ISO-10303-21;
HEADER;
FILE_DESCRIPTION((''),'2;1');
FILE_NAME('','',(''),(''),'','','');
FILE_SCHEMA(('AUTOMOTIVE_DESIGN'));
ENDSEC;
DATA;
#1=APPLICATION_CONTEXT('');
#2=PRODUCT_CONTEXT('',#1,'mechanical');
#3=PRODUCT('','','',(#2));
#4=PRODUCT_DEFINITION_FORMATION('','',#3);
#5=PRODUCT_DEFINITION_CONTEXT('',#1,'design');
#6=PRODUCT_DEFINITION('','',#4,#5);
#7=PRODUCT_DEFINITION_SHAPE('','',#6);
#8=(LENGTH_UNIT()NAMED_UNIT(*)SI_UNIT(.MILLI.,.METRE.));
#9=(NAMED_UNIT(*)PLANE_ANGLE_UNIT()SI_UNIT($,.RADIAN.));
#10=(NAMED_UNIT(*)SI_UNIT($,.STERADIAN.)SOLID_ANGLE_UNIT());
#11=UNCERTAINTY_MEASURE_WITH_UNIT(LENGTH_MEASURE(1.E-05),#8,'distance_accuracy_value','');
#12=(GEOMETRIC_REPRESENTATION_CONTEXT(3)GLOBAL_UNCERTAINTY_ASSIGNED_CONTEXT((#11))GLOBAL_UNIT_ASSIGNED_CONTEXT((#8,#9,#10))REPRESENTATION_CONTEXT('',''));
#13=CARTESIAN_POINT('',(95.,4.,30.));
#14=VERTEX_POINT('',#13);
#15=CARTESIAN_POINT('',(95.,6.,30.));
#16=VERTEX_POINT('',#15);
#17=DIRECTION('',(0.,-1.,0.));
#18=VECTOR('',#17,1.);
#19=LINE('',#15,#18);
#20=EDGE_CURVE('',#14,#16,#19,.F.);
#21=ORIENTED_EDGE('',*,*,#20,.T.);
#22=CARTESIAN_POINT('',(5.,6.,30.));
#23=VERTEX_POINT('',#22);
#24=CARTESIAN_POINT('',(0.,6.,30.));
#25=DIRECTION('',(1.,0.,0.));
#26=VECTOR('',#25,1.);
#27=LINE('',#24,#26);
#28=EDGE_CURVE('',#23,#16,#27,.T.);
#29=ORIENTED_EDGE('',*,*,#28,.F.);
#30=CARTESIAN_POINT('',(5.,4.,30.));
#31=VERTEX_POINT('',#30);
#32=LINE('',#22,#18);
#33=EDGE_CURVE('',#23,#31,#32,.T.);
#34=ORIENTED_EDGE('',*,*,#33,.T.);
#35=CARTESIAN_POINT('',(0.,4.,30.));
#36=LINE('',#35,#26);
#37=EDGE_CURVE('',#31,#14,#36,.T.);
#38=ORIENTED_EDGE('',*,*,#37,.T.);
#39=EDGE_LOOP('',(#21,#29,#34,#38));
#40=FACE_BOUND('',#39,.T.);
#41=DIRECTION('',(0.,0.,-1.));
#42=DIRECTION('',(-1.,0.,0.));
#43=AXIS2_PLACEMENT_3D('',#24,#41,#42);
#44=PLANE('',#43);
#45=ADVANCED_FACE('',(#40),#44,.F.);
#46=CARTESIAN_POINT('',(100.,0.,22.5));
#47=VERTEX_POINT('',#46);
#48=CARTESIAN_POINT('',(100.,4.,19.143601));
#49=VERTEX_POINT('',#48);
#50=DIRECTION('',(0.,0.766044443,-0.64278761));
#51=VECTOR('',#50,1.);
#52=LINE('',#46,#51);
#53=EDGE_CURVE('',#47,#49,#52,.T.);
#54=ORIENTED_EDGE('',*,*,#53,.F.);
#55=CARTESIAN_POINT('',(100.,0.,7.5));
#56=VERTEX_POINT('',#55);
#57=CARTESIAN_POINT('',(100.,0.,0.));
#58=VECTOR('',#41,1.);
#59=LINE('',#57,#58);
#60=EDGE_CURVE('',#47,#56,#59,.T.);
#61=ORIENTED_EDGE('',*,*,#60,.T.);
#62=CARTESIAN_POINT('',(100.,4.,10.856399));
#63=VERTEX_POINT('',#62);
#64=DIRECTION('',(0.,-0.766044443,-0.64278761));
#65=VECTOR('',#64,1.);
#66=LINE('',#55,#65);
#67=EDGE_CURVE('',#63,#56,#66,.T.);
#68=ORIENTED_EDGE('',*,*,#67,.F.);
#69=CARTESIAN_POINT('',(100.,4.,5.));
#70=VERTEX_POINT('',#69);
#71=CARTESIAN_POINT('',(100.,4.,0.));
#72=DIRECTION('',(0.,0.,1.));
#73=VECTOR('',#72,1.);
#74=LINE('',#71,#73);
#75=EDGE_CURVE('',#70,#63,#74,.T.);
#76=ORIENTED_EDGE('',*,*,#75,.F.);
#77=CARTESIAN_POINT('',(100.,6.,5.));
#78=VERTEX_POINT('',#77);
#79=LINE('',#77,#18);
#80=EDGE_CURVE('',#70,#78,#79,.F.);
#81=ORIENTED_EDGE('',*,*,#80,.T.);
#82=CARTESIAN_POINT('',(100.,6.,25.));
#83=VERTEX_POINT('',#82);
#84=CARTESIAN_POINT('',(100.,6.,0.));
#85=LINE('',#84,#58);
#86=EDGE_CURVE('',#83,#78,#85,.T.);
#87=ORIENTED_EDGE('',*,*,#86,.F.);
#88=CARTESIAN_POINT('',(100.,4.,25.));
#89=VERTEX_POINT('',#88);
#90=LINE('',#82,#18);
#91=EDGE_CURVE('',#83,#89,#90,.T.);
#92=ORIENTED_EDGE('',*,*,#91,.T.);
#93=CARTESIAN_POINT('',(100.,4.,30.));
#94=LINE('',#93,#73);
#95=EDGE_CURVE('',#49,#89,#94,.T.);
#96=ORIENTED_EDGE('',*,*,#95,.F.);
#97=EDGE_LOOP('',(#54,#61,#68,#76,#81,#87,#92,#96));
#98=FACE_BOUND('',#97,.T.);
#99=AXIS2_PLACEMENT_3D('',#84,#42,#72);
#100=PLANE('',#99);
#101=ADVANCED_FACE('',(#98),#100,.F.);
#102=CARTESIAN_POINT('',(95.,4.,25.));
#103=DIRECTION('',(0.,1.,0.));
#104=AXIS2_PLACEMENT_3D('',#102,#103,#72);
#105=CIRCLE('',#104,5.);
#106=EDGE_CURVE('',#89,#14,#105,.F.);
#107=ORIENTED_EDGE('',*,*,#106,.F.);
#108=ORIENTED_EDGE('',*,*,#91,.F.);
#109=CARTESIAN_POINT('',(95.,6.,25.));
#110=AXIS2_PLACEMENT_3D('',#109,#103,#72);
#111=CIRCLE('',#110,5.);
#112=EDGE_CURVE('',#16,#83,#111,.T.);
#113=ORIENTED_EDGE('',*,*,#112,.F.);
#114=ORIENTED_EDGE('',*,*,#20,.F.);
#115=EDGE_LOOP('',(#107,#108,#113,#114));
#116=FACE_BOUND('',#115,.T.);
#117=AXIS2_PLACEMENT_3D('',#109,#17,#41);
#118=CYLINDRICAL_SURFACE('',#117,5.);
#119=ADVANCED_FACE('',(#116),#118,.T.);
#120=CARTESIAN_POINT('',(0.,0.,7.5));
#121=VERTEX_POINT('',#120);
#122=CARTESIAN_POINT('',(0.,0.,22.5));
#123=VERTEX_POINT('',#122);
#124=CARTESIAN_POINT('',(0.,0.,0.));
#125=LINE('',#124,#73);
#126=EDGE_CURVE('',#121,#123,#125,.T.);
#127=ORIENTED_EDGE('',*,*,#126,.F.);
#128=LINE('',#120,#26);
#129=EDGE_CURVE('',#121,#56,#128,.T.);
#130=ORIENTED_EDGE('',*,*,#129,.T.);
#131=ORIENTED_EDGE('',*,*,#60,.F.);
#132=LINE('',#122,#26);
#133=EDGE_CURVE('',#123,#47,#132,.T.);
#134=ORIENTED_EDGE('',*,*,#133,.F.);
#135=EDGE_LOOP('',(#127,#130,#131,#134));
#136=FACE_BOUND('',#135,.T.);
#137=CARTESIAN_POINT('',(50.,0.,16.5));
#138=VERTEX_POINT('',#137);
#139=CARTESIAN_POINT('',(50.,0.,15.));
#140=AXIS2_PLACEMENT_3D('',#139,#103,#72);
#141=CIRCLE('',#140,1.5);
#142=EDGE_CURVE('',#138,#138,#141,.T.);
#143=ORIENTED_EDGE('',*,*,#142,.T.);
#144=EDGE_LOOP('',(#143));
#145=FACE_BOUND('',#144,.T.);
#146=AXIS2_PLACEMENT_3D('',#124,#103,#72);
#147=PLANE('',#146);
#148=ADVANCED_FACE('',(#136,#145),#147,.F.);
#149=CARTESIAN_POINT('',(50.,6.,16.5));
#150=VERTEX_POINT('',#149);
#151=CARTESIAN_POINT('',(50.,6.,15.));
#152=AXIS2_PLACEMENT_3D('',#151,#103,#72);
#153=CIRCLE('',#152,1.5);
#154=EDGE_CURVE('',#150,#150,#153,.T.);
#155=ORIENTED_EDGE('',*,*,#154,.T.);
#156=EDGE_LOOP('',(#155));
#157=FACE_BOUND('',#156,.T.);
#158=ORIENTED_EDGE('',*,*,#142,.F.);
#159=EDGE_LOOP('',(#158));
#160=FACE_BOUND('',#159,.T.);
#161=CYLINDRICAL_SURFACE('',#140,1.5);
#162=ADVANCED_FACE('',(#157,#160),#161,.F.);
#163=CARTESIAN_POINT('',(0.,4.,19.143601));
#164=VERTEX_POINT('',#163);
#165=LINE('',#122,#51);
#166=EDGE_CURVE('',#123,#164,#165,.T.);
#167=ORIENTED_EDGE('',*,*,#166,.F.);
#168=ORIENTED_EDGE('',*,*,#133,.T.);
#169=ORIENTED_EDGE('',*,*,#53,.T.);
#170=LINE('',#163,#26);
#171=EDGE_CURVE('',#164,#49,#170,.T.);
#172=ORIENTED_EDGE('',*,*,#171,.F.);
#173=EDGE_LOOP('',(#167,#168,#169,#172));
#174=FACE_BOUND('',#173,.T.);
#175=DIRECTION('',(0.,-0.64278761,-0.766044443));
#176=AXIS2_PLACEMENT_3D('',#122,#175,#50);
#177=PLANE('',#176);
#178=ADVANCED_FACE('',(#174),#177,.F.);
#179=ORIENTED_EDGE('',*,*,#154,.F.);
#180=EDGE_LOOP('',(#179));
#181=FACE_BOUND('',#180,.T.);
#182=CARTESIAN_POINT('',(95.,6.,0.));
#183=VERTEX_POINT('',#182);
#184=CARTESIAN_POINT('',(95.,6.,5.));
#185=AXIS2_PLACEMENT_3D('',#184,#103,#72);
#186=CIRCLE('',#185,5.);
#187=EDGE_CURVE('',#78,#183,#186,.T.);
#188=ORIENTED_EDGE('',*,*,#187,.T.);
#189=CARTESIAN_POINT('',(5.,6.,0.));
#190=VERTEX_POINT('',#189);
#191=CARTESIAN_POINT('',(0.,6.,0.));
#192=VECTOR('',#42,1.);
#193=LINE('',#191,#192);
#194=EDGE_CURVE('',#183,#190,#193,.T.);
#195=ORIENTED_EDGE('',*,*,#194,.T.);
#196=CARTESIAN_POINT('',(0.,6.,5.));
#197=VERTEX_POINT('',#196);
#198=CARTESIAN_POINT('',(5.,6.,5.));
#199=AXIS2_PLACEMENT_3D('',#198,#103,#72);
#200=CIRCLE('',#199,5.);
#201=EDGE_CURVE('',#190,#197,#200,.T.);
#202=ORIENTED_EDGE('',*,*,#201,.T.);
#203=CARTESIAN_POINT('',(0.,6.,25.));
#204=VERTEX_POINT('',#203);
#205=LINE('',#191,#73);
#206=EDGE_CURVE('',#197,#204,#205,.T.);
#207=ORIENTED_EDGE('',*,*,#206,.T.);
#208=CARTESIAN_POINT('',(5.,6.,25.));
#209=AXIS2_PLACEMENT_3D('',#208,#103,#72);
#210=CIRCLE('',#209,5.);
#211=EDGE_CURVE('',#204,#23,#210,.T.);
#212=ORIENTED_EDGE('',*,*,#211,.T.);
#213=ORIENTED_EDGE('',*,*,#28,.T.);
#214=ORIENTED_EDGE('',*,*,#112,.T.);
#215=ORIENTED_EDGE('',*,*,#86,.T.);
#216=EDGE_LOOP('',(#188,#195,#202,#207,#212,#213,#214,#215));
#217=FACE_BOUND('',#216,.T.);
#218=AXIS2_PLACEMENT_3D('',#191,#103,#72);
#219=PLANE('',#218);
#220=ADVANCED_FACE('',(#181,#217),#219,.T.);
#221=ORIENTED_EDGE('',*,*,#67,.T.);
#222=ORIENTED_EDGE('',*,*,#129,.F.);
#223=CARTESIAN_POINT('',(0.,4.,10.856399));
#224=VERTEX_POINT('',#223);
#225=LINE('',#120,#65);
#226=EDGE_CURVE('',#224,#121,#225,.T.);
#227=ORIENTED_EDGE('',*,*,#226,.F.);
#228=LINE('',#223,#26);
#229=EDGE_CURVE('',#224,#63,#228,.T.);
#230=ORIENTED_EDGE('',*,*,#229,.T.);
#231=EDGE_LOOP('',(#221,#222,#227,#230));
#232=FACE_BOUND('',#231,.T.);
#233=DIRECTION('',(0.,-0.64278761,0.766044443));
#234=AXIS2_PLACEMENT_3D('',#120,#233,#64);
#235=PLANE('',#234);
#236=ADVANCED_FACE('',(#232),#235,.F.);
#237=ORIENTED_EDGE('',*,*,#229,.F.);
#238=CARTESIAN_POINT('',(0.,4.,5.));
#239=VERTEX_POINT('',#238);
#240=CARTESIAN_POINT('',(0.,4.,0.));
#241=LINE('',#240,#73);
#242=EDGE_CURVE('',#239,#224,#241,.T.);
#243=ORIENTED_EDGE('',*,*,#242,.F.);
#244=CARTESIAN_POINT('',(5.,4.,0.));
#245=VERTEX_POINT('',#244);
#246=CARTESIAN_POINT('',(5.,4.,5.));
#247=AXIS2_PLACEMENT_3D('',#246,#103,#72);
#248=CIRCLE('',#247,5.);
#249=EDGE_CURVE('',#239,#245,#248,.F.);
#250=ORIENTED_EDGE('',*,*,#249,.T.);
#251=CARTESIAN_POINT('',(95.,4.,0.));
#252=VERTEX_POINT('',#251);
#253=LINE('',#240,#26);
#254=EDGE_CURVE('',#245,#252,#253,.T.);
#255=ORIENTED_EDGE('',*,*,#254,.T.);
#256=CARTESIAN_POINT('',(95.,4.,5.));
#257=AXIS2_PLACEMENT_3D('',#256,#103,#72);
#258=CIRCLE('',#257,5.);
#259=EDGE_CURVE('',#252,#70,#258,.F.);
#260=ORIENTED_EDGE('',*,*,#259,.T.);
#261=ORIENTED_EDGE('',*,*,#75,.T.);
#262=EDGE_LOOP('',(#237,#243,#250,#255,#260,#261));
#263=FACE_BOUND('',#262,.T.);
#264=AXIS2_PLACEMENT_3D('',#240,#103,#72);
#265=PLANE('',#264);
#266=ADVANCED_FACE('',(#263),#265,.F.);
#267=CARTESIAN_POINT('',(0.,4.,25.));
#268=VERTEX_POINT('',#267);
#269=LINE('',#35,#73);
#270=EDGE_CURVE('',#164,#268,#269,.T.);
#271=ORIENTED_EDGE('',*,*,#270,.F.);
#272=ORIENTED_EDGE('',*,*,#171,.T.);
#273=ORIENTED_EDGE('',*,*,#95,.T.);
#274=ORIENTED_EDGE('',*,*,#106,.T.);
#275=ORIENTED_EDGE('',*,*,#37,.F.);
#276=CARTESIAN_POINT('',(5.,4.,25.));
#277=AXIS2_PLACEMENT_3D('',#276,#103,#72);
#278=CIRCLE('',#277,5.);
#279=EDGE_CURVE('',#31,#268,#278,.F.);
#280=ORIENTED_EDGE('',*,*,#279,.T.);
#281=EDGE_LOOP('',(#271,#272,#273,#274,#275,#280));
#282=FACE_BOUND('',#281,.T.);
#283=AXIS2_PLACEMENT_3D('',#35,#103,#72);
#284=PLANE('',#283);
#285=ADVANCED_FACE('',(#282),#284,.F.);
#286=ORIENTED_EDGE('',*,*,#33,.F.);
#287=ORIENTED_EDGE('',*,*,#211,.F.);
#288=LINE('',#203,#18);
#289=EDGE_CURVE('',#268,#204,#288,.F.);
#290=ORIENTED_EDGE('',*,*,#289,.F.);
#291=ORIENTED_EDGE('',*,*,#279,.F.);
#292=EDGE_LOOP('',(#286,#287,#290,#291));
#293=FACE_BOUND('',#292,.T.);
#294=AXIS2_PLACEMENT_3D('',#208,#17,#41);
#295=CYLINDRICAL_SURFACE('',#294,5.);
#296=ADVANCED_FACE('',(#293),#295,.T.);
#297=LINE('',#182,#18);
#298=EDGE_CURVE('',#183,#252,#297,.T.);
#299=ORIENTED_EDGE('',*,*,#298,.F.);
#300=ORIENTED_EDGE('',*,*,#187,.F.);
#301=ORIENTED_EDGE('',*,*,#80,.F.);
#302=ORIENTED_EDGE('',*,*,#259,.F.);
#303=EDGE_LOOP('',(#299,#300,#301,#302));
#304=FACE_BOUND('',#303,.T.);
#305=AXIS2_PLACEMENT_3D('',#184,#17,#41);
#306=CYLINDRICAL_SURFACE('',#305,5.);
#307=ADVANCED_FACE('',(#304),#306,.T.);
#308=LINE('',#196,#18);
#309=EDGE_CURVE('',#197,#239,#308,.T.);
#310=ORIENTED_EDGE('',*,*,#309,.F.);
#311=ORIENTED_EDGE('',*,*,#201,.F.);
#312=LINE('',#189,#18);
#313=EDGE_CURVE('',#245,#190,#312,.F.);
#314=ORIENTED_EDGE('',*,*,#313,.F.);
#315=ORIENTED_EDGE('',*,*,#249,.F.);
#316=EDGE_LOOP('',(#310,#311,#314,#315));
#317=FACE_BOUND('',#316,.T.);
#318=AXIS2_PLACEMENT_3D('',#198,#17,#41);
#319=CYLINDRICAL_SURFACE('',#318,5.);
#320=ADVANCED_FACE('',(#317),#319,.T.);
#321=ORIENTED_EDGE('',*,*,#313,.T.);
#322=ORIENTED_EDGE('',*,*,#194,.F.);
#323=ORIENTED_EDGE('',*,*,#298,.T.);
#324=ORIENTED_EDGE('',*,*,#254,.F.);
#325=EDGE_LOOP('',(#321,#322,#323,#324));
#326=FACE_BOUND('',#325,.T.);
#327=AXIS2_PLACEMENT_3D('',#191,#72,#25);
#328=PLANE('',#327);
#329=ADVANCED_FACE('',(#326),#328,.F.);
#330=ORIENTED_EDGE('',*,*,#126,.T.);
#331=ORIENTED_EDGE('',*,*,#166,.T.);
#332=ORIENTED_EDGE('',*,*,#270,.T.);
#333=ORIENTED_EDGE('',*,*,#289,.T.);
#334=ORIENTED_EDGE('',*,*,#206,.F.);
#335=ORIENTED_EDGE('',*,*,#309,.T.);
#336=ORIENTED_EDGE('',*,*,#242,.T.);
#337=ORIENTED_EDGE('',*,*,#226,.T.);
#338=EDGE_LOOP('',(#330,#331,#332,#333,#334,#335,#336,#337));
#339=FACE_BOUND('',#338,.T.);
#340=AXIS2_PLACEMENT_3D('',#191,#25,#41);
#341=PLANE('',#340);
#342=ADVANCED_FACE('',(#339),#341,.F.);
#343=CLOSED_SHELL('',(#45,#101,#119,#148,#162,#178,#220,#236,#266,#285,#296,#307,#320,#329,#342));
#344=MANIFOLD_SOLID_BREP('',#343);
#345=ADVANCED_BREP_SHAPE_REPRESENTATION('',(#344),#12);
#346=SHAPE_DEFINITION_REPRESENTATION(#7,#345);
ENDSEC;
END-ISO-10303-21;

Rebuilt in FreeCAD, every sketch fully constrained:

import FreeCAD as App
import Part
import Sketcher
Q = App.Units.Quantity


def edges_at(feature, points):
    """Names of the edges that pass closest to the given points."""
    edges = feature.Shape.Edges
    near = lambda p: min(range(len(edges)), key=lambda i: edges[i].distToShape(Part.Vertex(*p))[0])
    return sorted({f"Edge{near(p) + 1}" for p in points})


def add_polygon(sketch, points):
    """Adds a closed chain of lines whose ends are joined by coincident constraints."""
    first, n = sketch.GeometryCount, len(points)
    for a, b in zip(points, points[1:] + points[:1]):
        sketch.addGeometry(Part.LineSegment(App.Vector(*a, 0), App.Vector(*b, 0)), False)
    for i in range(n):
        sketch.addConstraint(Sketcher.Constraint("Coincident", first + i, 2, first + (i + 1) % n, 1))

doc = App.newDocument("Part")
body = doc.addObject("PartDesign::Body", "Body")

sketch1 = body.newObject("Sketcher::SketchObject", "Sketch")
sketch1.AttachmentSupport = (doc.getObject("XZ_Plane"), [""])
sketch1.MapMode = "FlatFace"
add_polygon(sketch1, [(0, 0), (0, 30), (100, 30), (100, 0)])
sketch1.addConstraint(Sketcher.Constraint("Vertical", 0))
sketch1.addConstraint(Sketcher.Constraint("Horizontal", 1))
sketch1.addConstraint(Sketcher.Constraint("Vertical", 2))
sketch1.addConstraint(Sketcher.Constraint("Horizontal", 3))
sketch1.addConstraint(Sketcher.Constraint("Coincident", 3, 2, -1, 1))
sketch1.addConstraint(Sketcher.Constraint("DistanceX", 1, 1, 1, 2, Q("100 mm")))
sketch1.addConstraint(Sketcher.Constraint("DistanceY", 0, 1, 0, 2, Q("30 mm")))
pad1 = body.newObject("PartDesign::Pad", "Pad")
pad1.Profile = sketch1
pad1.Length = 6
pad1.Reversed = True

sketch2 = body.newObject("Sketcher::SketchObject", "Sketch001")
sketch2.AttachmentSupport = (doc.getObject("YZ_Plane"), [""])
sketch2.MapMode = "FlatFace"
sketch2.AttachmentOffset = App.Placement(App.Vector(0, 0, 100), App.Rotation())
add_polygon(sketch2, [(0, 7.5), (0, 0), (4, 0), (4, 10.9)])
add_polygon(sketch2, [(0, 30), (0, 22.5), (4, 19.1), (4, 30)])
sketch2.addConstraint(Sketcher.Constraint("Vertical", 0))
sketch2.addConstraint(Sketcher.Constraint("Horizontal", 1))
sketch2.addConstraint(Sketcher.Constraint("Vertical", 2))
sketch2.addConstraint(Sketcher.Constraint("Vertical", 4))
sketch2.addConstraint(Sketcher.Constraint("Vertical", 6))
sketch2.addConstraint(Sketcher.Constraint("Horizontal", 7))
sketch2.addConstraint(Sketcher.Constraint("Coincident", 0, 2, -1, 1))
sketch2.addConstraint(Sketcher.Constraint("PointOnObject", 4, 2, -2))
sketch2.addConstraint(Sketcher.Constraint("Vertical", 2, 2, 5, 2))
sketch2.addConstraint(Sketcher.Constraint("Equal", 0, 4))
sketch2.addConstraint(Sketcher.Constraint("Equal", 2, 6))
sketch2.addConstraint(Sketcher.Constraint("DistanceX", 1, 1, 1, 2, Q("4 mm")))
sketch2.addConstraint(Sketcher.Constraint("Angle", 3, Q("-140 deg")))
sketch2.addConstraint(Sketcher.Constraint("DistanceY", 0, 2, 0, 1, Q("7.5 mm")))
sketch2.addConstraint(Sketcher.Constraint("DistanceY", -1, 1, 6, 2, Q("30 mm")))
pocket1 = body.newObject("PartDesign::Pocket", "Pocket")
pocket1.Profile = sketch2
pocket1.Type = "ThroughAll"

sketch3 = body.newObject("Sketcher::SketchObject", "Sketch002")
sketch3.AttachmentSupport = (doc.getObject("XZ_Plane"), [""])
sketch3.MapMode = "FlatFace"
sketch3.AttachmentOffset = App.Placement(App.Vector(0, 0, -6), App.Rotation())
sketch3.addGeometry(Part.Circle(App.Vector(50, 15, 0), App.Vector(0, 0, 1), 1.5), False)
sketch3.addConstraint(Sketcher.Constraint("Diameter", 0, Q("3 mm")))
sketch3.addConstraint(Sketcher.Constraint("DistanceX", -1, 1, 0, 3, Q("50 mm")))
sketch3.addConstraint(Sketcher.Constraint("DistanceY", -1, 1, 0, 3, Q("15 mm")))
pocket2 = body.newObject("PartDesign::Pocket", "Pocket001")
pocket2.Profile = sketch3
pocket2.Type = "ThroughAll"
pocket2.Reversed = True
doc.recompute()

fillet = body.newObject("PartDesign::Fillet", "Fillet")
fillet.Base = (pocket2, edges_at(pocket2, [(0, 5, 0)]))
fillet.Radius = 5
doc.recompute()

fillet2 = body.newObject("PartDesign::Fillet", "Fillet001")
fillet2.Base = (fillet, edges_at(fillet, [(100, 5, 0), (100, 5, 30), (0, 5, 30)]))
fillet2.Radius = 5

doc.recompute()
